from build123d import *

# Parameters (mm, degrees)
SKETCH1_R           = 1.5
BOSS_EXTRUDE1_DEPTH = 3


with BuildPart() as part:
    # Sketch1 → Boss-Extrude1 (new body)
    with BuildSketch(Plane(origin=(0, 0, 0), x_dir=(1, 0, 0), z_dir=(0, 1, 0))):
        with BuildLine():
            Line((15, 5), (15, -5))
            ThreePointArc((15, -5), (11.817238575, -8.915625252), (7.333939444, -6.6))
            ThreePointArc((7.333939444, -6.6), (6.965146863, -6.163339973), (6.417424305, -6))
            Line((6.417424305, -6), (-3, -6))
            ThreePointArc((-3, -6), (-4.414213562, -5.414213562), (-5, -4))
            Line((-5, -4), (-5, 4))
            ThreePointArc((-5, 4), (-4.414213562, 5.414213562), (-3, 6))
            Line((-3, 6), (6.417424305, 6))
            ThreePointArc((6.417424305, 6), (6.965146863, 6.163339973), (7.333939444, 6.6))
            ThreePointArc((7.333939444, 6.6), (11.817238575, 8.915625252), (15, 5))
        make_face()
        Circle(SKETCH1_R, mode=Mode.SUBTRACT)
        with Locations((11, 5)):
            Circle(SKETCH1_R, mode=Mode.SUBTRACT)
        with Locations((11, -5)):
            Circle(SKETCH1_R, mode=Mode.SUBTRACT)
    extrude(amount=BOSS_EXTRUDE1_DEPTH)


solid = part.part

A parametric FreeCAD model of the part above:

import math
import FreeCAD as App
import Part
import Sketcher

doc = App.newDocument("Part")
params = doc.addObject("Spreadsheet::Sheet", "Params")
for row, (alias, value) in enumerate([
    ("sketch1_diameter", "3 mm"),
    ("sketch1_radius", "4 mm"),
    ("sketch1_radius2", "1 mm"),
    ("sketch1_radius3", "2 mm"),
    ("sketch1_height", "10 mm"),
    ("pad1_length", "3 mm"),
], start=1):
    params.set(f"A{row}", alias)
    params.set(f"B{row}", "=" + value)
    params.setAlias(f"B{row}", alias)

body = doc.addObject("PartDesign::Body", "Body")

sketch1 = body.newObject("Sketcher::SketchObject", "Sketch")
sketch1.AttachmentSupport = (doc.getObject("XZ_Plane"), [""])
sketch1.MapMode = "FlatFace"
sketch1.addGeometry([
    Part.LineSegment(App.Vector(15, 5, 0), App.Vector(15, -5, 0)),
    Part.ArcOfCircle(Part.Circle(App.Vector(11, -5, 0), App.Vector(0, 0, 1), 4), math.radians(-156), math.radians(0)),
    Part.ArcOfCircle(Part.Circle(App.Vector(6.4, -7, 0), App.Vector(0, 0, 1), 1), math.radians(24), math.radians(90)),
    Part.LineSegment(App.Vector(6.4, -6, 0), App.Vector(-3, -6, 0)),
    Part.ArcOfCircle(Part.Circle(App.Vector(-3, -4, 0), App.Vector(0, 0, 1), 2), math.radians(-180), math.radians(-90)),
    Part.LineSegment(App.Vector(-5, -4, 0), App.Vector(-5, 4, 0)),
    Part.ArcOfCircle(Part.Circle(App.Vector(-3, 4, 0), App.Vector(0, 0, 1), 2), math.radians(90), math.radians(180)),
    Part.LineSegment(App.Vector(-3, 6, 0), App.Vector(6.4, 6, 0)),
    Part.ArcOfCircle(Part.Circle(App.Vector(6.4, 7, 0), App.Vector(0, 0, 1), 1), math.radians(-90), math.radians(-24)),
    Part.ArcOfCircle(Part.Circle(App.Vector(11, 5, 0), App.Vector(0, 0, 1), 4), math.radians(0), math.radians(156)),
    Part.Circle(App.Vector(11, 5, 0), App.Vector(0, 0, 1), 1.5),
    Part.Circle(App.Vector(11, -5, 0), App.Vector(0, 0, 1), 1.5),
    Part.Circle(App.Vector(0, 0, 0), App.Vector(0, 0, 1), 1.5),
], False)
sketch1.addConstraint([
    Sketcher.Constraint("Tangent", 0, 2, 1, 2),
    Sketcher.Constraint("Tangent", 1, 1, 2, 1),
    Sketcher.Constraint("Tangent", 2, 2, 3, 1),
    Sketcher.Constraint("Tangent", 3, 2, 4, 2),
    Sketcher.Constraint("Tangent", 4, 1, 5, 1),
    Sketcher.Constraint("Tangent", 5, 2, 6, 2),
    Sketcher.Constraint("Tangent", 6, 1, 7, 1),
    Sketcher.Constraint("Tangent", 7, 2, 8, 1),
    Sketcher.Constraint("Tangent", 8, 2, 9, 2),
    Sketcher.Constraint("Tangent", 9, 1, 0, 1),
    Sketcher.Constraint("Vertical", 0),
    Sketcher.Constraint("Horizontal", 3),
    Sketcher.Constraint("Vertical", 5),
    Sketcher.Constraint("Horizontal", 7),
    Sketcher.Constraint("Coincident", 12, 3, -1, 1),
    Sketcher.Constraint("Coincident", 10, 3, 9, 3),
    Sketcher.Constraint("Coincident", 11, 3, 1, 3),
    Sketcher.Constraint("Equal", 4, 6),
    Sketcher.Constraint("Equal", 2, 8),
    Sketcher.Constraint("Equal", 1, 9),
    Sketcher.Constraint("Equal", 10, 11),
    Sketcher.Constraint("Equal", 11, 12),
    Sketcher.Constraint("Symmetric", 2, 3, 8, 3, -1),
    Sketcher.Constraint("Diameter", 10, 3.0),
    Sketcher.Constraint("Radius", 1, 4.0),
    Sketcher.Constraint("Radius", 2, 1.0),
    Sketcher.Constraint("Radius", 4, 2.0),
    Sketcher.Constraint("DistanceY", 0, 2, 0, 1, 10.0),
    Sketcher.Constraint("DistanceY", 5, 1, 5, 2, 8.0),
    Sketcher.Constraint("DistanceX", -1, 1, 1, 3, 11.0),
    Sketcher.Constraint("DistanceX", 4, 3, -1, 1, 3.0),
])
sketch1.setExpression("Constraints[23]", "Params.sketch1_diameter")
sketch1.setExpression("Constraints[24]", "Params.sketch1_radius")
sketch1.setExpression("Constraints[25]", "Params.sketch1_radius2")
sketch1.setExpression("Constraints[26]", "Params.sketch1_radius3")
sketch1.setExpression("Constraints[27]", "Params.sketch1_height")
pad1 = body.newObject("PartDesign::Pad", "Pad")
pad1.Profile = sketch1
pad1.setExpression("Length", "Params.pad1_length")
pad1.Reversed = True

doc.recompute()
